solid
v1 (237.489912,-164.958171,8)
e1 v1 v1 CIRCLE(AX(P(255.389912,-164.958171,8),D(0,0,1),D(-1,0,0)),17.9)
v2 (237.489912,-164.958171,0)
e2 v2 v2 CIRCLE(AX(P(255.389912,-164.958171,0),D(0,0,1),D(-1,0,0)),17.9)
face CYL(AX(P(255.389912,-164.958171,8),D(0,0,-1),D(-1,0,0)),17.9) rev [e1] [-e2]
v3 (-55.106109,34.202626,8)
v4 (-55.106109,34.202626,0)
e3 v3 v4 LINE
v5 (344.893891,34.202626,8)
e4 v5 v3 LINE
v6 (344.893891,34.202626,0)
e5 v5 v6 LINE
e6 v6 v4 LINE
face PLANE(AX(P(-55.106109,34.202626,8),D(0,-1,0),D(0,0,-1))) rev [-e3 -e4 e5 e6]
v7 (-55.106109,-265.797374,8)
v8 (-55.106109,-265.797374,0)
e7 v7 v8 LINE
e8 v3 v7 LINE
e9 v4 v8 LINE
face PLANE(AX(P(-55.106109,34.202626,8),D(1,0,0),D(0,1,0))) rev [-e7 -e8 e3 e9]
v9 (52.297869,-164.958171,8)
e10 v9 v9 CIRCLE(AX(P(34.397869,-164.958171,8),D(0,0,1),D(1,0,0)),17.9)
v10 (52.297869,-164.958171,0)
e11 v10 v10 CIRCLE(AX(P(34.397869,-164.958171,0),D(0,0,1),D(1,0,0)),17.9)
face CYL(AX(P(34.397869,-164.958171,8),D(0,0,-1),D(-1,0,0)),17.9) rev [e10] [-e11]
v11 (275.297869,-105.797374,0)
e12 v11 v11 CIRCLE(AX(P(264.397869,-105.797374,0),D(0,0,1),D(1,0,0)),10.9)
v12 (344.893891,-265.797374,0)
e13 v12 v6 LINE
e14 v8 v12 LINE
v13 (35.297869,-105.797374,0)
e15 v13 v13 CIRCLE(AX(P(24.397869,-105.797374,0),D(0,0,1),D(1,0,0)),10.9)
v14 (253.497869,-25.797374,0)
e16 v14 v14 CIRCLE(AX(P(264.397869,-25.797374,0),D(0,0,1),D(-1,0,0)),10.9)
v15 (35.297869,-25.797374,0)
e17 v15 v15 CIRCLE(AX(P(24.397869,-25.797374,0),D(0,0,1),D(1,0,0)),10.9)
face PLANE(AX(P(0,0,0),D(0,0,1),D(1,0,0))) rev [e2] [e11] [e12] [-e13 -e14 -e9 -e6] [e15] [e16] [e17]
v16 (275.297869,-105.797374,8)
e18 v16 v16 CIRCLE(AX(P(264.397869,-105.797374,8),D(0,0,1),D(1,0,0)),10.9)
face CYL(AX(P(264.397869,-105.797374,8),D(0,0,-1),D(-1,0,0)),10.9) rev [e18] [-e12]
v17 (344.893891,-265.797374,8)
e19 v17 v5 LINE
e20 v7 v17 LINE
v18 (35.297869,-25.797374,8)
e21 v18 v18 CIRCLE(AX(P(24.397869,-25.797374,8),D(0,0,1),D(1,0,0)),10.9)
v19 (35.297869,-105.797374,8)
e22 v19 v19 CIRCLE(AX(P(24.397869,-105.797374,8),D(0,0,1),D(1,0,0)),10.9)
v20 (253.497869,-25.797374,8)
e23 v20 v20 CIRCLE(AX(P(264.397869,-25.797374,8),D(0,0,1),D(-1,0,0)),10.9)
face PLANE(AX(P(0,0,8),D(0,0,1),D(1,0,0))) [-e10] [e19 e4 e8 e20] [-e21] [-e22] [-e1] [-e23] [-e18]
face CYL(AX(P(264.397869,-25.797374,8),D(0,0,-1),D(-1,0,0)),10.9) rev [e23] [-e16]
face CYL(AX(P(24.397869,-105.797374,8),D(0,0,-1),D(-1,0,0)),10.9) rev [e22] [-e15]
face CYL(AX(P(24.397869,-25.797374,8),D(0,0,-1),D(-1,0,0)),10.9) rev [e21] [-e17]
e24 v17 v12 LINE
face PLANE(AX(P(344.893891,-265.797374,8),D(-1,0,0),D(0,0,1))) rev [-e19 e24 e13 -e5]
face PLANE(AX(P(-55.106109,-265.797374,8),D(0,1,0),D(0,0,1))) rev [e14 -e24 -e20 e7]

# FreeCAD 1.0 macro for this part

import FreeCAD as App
import Part
import Sketcher
from FreeCAD import Vector
Q = App.Units.Quantity

doc = App.newDocument("Part")
body = doc.addObject("PartDesign::Body", "Body")

# Sketch on XY plane
sketch1 = body.newObject("Sketcher::SketchObject", "Sketch")
sketch1.AttachmentSupport = (doc.getObject("XY_Plane"), [""])
sketch1.MapMode = "FlatFace"
sketch1.addGeometry([
    Part.LineSegment(Vector(-55, 34, 0), Vector(-55, -266, 0)),  # 0
    Part.LineSegment(Vector(-55, -266, 0), Vector(345, -266, 0)),  # 1
    Part.LineSegment(Vector(345, -266, 0), Vector(345, 34, 0)),  # 2
    Part.LineSegment(Vector(345, 34, 0), Vector(-55, 34, 0)),  # 3
    Part.Circle(Vector(34, -165, 0), Vector(0, 0, 1), 18),  # 4
    Part.Circle(Vector(24, -106, 0), Vector(0, 0, 1), 11),  # 5
    Part.Circle(Vector(255, -165, 0), Vector(0, 0, 1), 18),  # 6
    Part.Circle(Vector(264, -106, 0), Vector(0, 0, 1), 11),  # 7
    Part.Circle(Vector(24, -26, 0), Vector(0, 0, 1), 11),  # 8
    Part.Circle(Vector(264, -26, 0), Vector(0, 0, 1), 11),  # 9
], False)
sketch1.addConstraint([
    Sketcher.Constraint("Coincident", 0, 2, 1, 1),
    Sketcher.Constraint("Coincident", 1, 2, 2, 1),
    Sketcher.Constraint("Coincident", 2, 2, 3, 1),
    Sketcher.Constraint("Coincident", 3, 2, 0, 1),
    Sketcher.Constraint("Vertical", 0),
    Sketcher.Constraint("Horizontal", 1),
    Sketcher.Constraint("Vertical", 2),
    Sketcher.Constraint("Horizontal", 3),
    Sketcher.Constraint("Equal", 4, 6),
    Sketcher.Constraint("Equal", 5, 7),
    Sketcher.Constraint("Equal", 7, 8),
    Sketcher.Constraint("Equal", 8, 9),
    Sketcher.Constraint("Horizontal", 4, 3, 6, 3),
    Sketcher.Constraint("Horizontal", 5, 3, 7, 3),
    Sketcher.Constraint("Horizontal", 8, 3, 9, 3),
    Sketcher.Constraint("Vertical", 5, 3, 8, 3),
    Sketcher.Constraint("Vertical", 7, 3, 9, 3),
    Sketcher.Constraint("Diameter", 4, Q("35.8 mm")),
    Sketcher.Constraint("Diameter", 5, Q("21.8 mm")),
    Sketcher.Constraint("DistanceX", 1, 1, 1, 2, Q("400 mm")),
    Sketcher.Constraint("DistanceY", 0, 2, 0, 1, Q("300 mm")),
    Sketcher.Constraint("DistanceX", 5, 3, 4, 3, Q("10 mm")),
    Sketcher.Constraint("DistanceX", 4, 3, 7, 3, Q("230 mm")),
    Sketcher.Constraint("DistanceY", 5, 3, 8, 3, Q("80 mm")),
    Sketcher.Constraint("DistanceY", 0, 2, 5, 3, Q("160 mm")),
    Sketcher.Constraint("DistanceX", -1, 1, 4, 3, Q("34.397869 mm")),
    Sketcher.Constraint("DistanceY", 4, 3, -1, 1, Q("164.958171 mm")),
    Sketcher.Constraint("DistanceX", 0, 2, -1, 1, Q("55.106109 mm")),
    Sketcher.Constraint("DistanceX", 0, 2, 6, 3, Q("310.496021 mm")),
    Sketcher.Constraint("DistanceY", 5, 3, -1, 1, Q("105.797374 mm")),
])
pad1 = body.newObject("PartDesign::Pad", "Pad")
pad1.Profile = sketch1
pad1.Length = 8

doc.recompute()
